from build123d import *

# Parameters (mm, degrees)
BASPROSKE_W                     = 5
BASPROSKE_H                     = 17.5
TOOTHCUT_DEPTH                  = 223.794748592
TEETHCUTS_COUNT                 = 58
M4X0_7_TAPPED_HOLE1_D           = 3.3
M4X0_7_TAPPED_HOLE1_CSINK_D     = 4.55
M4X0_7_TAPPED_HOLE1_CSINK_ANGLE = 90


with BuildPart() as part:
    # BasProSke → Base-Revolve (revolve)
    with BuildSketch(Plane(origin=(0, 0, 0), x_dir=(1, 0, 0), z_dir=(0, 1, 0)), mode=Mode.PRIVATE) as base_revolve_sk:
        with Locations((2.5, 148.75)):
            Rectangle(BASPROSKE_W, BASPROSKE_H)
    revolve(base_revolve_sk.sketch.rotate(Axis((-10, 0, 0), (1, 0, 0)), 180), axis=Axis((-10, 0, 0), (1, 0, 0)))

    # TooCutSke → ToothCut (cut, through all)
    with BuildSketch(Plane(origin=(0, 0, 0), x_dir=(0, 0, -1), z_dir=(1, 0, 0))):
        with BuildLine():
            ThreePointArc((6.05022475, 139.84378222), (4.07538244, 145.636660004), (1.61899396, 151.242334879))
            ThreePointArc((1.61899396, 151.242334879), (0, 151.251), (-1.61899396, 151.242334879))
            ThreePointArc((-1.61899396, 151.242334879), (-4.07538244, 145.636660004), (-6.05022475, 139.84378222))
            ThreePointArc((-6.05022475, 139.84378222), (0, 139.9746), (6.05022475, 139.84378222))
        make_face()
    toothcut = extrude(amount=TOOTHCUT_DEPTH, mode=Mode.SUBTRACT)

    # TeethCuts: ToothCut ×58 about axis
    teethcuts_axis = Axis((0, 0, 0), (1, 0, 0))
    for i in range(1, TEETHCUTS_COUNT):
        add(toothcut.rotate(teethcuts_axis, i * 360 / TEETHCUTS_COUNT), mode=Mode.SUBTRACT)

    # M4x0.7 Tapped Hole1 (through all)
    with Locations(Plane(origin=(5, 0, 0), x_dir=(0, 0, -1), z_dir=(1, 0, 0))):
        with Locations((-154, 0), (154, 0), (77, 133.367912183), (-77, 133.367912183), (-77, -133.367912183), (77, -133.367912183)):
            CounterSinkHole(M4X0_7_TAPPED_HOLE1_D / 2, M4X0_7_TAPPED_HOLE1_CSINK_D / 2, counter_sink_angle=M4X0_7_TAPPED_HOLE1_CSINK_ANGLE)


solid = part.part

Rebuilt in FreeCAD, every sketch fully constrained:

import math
import FreeCAD as App
import Part
import Sketcher
from FreeCAD import Vector
Q = App.Units.Quantity

doc = App.newDocument("Part")
body = doc.addObject("PartDesign::Body", "Body")

sketch1 = body.newObject("Sketcher::SketchObject", "Sketch")
sketch1.AttachmentSupport = (doc.getObject("XZ_Plane"), [""])
sketch1.MapMode = "FlatFace"
sketch1.addGeometry([
    Part.LineSegment(Vector(0, -158, 0), Vector(0, -140, 0)),
    Part.LineSegment(Vector(0, -140, 0), Vector(5, -140, 0)),
    Part.LineSegment(Vector(5, -140, 0), Vector(5, -158, 0)),
    Part.LineSegment(Vector(5, -158, 0), Vector(0, -158, 0)),
], False)
sketch1.addConstraint([
    Sketcher.Constraint("Coincident", 0, 2, 1, 1),
    Sketcher.Constraint("Coincident", 1, 2, 2, 1),
    Sketcher.Constraint("Coincident", 2, 2, 3, 1),
    Sketcher.Constraint("Coincident", 3, 2, 0, 1),
    Sketcher.Constraint("Vertical", 0),
    Sketcher.Constraint("Horizontal", 1),
    Sketcher.Constraint("Vertical", 2),
    Sketcher.Constraint("Horizontal", 3),
    Sketcher.Constraint("PointOnObject", 0, 2, -2),
    Sketcher.Constraint("DistanceX", 1, 1, 1, 2, Q("5 mm")),
    Sketcher.Constraint("DistanceY", 0, 1, 0, 2, Q("17.5 mm")),
    Sketcher.Constraint("DistanceY", 0, 2, -1, 1, Q("140 mm")),
])
revolution = body.newObject("PartDesign::Revolution", "Revolution")
revolution.Profile = sketch1
revolution.ReferenceAxis = (sketch1, ["H_Axis"])
revolution.Angle = 360

sketch2 = body.newObject("Sketcher::SketchObject", "Sketch001")
sketch2.AttachmentSupport = (doc.getObject("YZ_Plane"), [""])
sketch2.MapMode = "FlatFace"
sketch2.addGeometry([
    Part.ArcOfCircle(Part.Circle(Vector(119.4, 63.5, 0), Vector(0, 0, 1), 72.5), math.radians(-73.59), math.radians(-63.92)),
    Part.ArcOfCircle(Part.Circle(Vector(0, 0, 0), Vector(0, 0, 1), 151.3), math.radians(-0.61), math.radians(0.61)),
    Part.ArcOfCircle(Part.Circle(Vector(119.4, -63.5, 0), Vector(0, 0, 1), 72.5), math.radians(63.92), math.radians(73.59)),
    Part.ArcOfCircle(Part.Circle(Vector(0, 0, 0), Vector(0, 0, 1), 140), math.radians(-2.48), math.radians(2.48)),
], False)
sketch2.addConstraint([
    Sketcher.Constraint("Coincident", 0, 2, 1, 1),
    Sketcher.Constraint("Coincident", 1, 2, 2, 1),
    Sketcher.Constraint("Coincident", 2, 2, 3, 2),
    Sketcher.Constraint("Coincident", 3, 1, 0, 1),
    Sketcher.Constraint("Coincident", 1, 3, -1, 1),
    Sketcher.Constraint("Coincident", 3, 3, -1, 1),
    Sketcher.Constraint("Equal", 0, 2),
    Sketcher.Constraint("Symmetric", 0, 3, 2, 3, -1),
    Sketcher.Constraint("Radius", 0, Q("72.5 mm")),
    Sketcher.Constraint("Radius", 3, Q("139.9746 mm")),
    Sketcher.Constraint("Radius", 1, Q("151.251005 mm")),
    Sketcher.Constraint("DistanceX", 2, 3, 0, 2, Q("31.8751 mm")),
    Sketcher.Constraint("DistanceY", -1, 1, 0, 3, Q("63.498039 mm")),
])
pocket1 = body.newObject("PartDesign::Pocket", "Pocket")
pocket1.Profile = sketch2
pocket1.Type = "ThroughAll"
pocket1.Reversed = True
doc.recompute()

polarpattern = body.newObject("PartDesign::PolarPattern", "PolarPattern")
polarpattern.Originals = [pocket1]
polarpattern.Axis = (doc.getObject("X_Axis"), [""])
polarpattern.Angle = 360
polarpattern.Occurrences = 58
body.Tip = polarpattern

sketch3 = body.newObject("Sketcher::SketchObject", "Sketch002")
sketch3.AttachmentSupport = (doc.getObject("YZ_Plane"), [""])
sketch3.MapMode = "FlatFace"
sketch3.AttachmentOffset = App.Placement(Vector(0, 0, 5), App.Rotation())
sketch3.addGeometry([
    Part.Circle(Vector(0, 154, 0), Vector(0, 0, 1), 1.6),
    Part.Circle(Vector(0, -154, 0), Vector(0, 0, 1), 1.6),
    Part.Circle(Vector(133.4, -77, 0), Vector(0, 0, 1), 1.6),
    Part.Circle(Vector(133.4, 77, 0), Vector(0, 0, 1), 1.6),
    Part.Circle(Vector(-133.4, 77, 0), Vector(0, 0, 1), 1.6),
    Part.Circle(Vector(-133.4, -77, 0), Vector(0, 0, 1), 1.6),
], False)
sketch3.addConstraint([
    Sketcher.Constraint("Equal", 0, 1),
    Sketcher.Constraint("Equal", 1, 2),
    Sketcher.Constraint("Equal", 2, 3),
    Sketcher.Constraint("Equal", 3, 4),
    Sketcher.Constraint("Equal", 4, 5),
    Sketcher.Constraint("Symmetric", 0, 3, 1, 3, -1, 1),
    Sketcher.Constraint("Symmetric", 2, 3, 4, 3, -1, 1),
    Sketcher.Constraint("Symmetric", 3, 3, 5, 3, -1, 1),
    Sketcher.Constraint("Symmetric", 3, 3, 4, 3, -2),
    Sketcher.Constraint("PointOnObject", 0, 3, -2),
    Sketcher.Constraint("Diameter", 0, Q("3.3 mm")),
    Sketcher.Constraint("DistanceY", -1, 1, 0, 3, Q("154 mm")),
    Sketcher.Constraint("DistanceY", 2, 3, -1, 1, Q("77 mm")),
    Sketcher.Constraint("DistanceX", -1, 1, 2, 3, Q("133.367912 mm")),
])
doc.recompute()
hole = body.newObject("PartDesign::Hole", "Hole")
hole.Profile = sketch3
hole.ThreadType = "None"
hole.Diameter = 3.3
hole.DepthType = "ThroughAll"
hole.HoleCutType = "Countersink"
hole.HoleCutDiameter = 4.55
hole.HoleCutCountersinkAngle = 90

doc.recompute()
